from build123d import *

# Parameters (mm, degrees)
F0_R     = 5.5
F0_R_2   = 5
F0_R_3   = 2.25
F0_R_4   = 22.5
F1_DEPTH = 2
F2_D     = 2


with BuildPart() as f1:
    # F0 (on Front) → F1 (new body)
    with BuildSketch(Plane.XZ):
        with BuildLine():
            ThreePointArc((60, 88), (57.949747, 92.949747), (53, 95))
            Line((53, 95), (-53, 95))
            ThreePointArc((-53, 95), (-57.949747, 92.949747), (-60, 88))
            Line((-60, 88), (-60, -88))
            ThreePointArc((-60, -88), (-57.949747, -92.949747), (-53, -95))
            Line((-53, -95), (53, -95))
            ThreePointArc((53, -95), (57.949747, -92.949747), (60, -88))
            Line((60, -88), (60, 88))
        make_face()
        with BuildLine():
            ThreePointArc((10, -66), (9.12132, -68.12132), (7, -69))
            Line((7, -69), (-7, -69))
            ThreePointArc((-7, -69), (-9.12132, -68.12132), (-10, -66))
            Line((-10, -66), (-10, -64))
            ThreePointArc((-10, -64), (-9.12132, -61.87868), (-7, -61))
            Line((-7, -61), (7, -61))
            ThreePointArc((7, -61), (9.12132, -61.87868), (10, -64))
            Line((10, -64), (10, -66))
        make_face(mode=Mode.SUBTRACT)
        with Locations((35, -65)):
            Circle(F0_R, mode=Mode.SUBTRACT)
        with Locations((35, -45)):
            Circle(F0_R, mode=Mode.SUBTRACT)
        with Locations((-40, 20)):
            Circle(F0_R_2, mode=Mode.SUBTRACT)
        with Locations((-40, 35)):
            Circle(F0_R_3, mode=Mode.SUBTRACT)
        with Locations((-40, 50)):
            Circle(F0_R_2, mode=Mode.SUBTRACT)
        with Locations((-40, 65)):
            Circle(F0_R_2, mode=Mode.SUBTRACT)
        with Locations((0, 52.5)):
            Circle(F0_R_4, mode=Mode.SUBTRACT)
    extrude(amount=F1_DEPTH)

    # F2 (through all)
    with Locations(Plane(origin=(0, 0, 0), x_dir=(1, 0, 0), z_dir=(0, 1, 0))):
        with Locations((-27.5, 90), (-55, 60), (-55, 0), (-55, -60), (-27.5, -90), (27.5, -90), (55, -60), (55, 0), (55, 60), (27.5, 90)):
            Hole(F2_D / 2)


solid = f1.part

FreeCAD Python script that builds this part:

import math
import FreeCAD as App
import Part
import Sketcher
from FreeCAD import Vector

doc = App.newDocument("Part")
body = doc.addObject("PartDesign::Body", "Body")

# Sketch on XZ plane
sketch1 = doc.addObject("Sketcher::SketchObject", "Sketch")
body.addObject(sketch1)
sketch1.AttachmentSupport = (doc.XZ_Plane, [""])
sketch1.MapMode = "FlatFace"
sketch1.addGeometry(Part.ArcOfCircle(Part.Circle(Vector(52.999998, 87.999998, 0), Vector(0, 0, 1), 7.000002), math.radians(0.000013), math.radians(89.999987)), False)
sketch1.addGeometry(Part.LineSegment(Vector(53, 95, 0), Vector(-53, 95, 0)), False)
sketch1.addGeometry(Part.ArcOfCircle(Part.Circle(Vector(-52.999998, 87.999998, 0), Vector(0, 0, 1), 7.000002), math.radians(90.000013), math.radians(179.999987)), False)
sketch1.addGeometry(Part.LineSegment(Vector(-60, 88, 0), Vector(-60, -88, 0)), False)
sketch1.addGeometry(Part.ArcOfCircle(Part.Circle(Vector(-52.999998, -87.999998, 0), Vector(0, 0, 1), 7.000002), math.radians(-179.999987), math.radians(-90.000013)), False)
sketch1.addGeometry(Part.LineSegment(Vector(-53, -95, 0), Vector(53, -95, 0)), False)
sketch1.addGeometry(Part.ArcOfCircle(Part.Circle(Vector(52.999998, -87.999998, 0), Vector(0, 0, 1), 7.000002), math.radians(-89.999987), math.radians(-0.000013)), False)
sketch1.addGeometry(Part.LineSegment(Vector(60, -88, 0), Vector(60, 88, 0)), False)
sketch1.addGeometry(Part.LineSegment(Vector(10, -64, 0), Vector(10, -66, 0)), False)
sketch1.addGeometry(Part.ArcOfCircle(Part.Circle(Vector(6.999999, -65.999999, 0), Vector(0, 0, 1), 3.000001), math.radians(-89.999978), math.radians(-0.000022)), False)
sketch1.addGeometry(Part.LineSegment(Vector(7, -69, 0), Vector(-7, -69, 0)), False)
sketch1.addGeometry(Part.ArcOfCircle(Part.Circle(Vector(-6.999999, -65.999999, 0), Vector(0, 0, 1), 3.000001), math.radians(-179.999978), math.radians(-90.000022)), False)
sketch1.addGeometry(Part.LineSegment(Vector(-10, -66, 0), Vector(-10, -64, 0)), False)
sketch1.addGeometry(Part.ArcOfCircle(Part.Circle(Vector(-6.999999, -64.000001, 0), Vector(0, 0, 1), 3.000001), math.radians(90.000022), math.radians(179.999978)), False)
sketch1.addGeometry(Part.LineSegment(Vector(-7, -61, 0), Vector(7, -61, 0)), False)
sketch1.addGeometry(Part.ArcOfCircle(Part.Circle(Vector(6.999999, -64.000001, 0), Vector(0, 0, 1), 3.000001), math.radians(0.000022), math.radians(89.999978)), False)
sketch1.addGeometry(Part.Circle(Vector(35, -65, 0), Vector(0, 0, 1), 5.5), False)
sketch1.addGeometry(Part.Circle(Vector(35, -45, 0), Vector(0, 0, 1), 5.5), False)
sketch1.addGeometry(Part.Circle(Vector(-40, 20, 0), Vector(0, 0, 1), 5), False)
sketch1.addGeometry(Part.Circle(Vector(-40, 35, 0), Vector(0, 0, 1), 2.25), False)
sketch1.addGeometry(Part.Circle(Vector(-40, 50, 0), Vector(0, 0, 1), 5), False)
sketch1.addGeometry(Part.Circle(Vector(-40, 65, 0), Vector(0, 0, 1), 5), False)
sketch1.addGeometry(Part.Circle(Vector(0, 52.5, 0), Vector(0, 0, 1), 22.5), False)
sketch1.addConstraint(Sketcher.Constraint("Tangent", 0, 2, 1, 1))
sketch1.addConstraint(Sketcher.Constraint("Tangent", 1, 2, 2, 1))
sketch1.addConstraint(Sketcher.Constraint("Tangent", 2, 2, 3, 1))
sketch1.addConstraint(Sketcher.Constraint("Tangent", 3, 2, 4, 1))
sketch1.addConstraint(Sketcher.Constraint("Tangent", 4, 2, 5, 1))
sketch1.addConstraint(Sketcher.Constraint("Tangent", 5, 2, 6, 1))
sketch1.addConstraint(Sketcher.Constraint("Tangent", 6, 2, 7, 1))
sketch1.addConstraint(Sketcher.Constraint("Tangent", 7, 2, 0, 1))
sketch1.addConstraint(Sketcher.Constraint("Tangent", 8, 2, 9, 2))
sketch1.addConstraint(Sketcher.Constraint("Tangent", 9, 1, 10, 1))
sketch1.addConstraint(Sketcher.Constraint("Tangent", 10, 2, 11, 2))
sketch1.addConstraint(Sketcher.Constraint("Tangent", 11, 1, 12, 1))
sketch1.addConstraint(Sketcher.Constraint("Tangent", 12, 2, 13, 2))
sketch1.addConstraint(Sketcher.Constraint("Tangent", 13, 1, 14, 1))
sketch1.addConstraint(Sketcher.Constraint("Tangent", 14, 2, 15, 2))
sketch1.addConstraint(Sketcher.Constraint("Tangent", 15, 1, 8, 1))
sketch1.addConstraint(Sketcher.Constraint("Horizontal", 1))
sketch1.addConstraint(Sketcher.Constraint("Vertical", 3))
sketch1.addConstraint(Sketcher.Constraint("Horizontal", 5))
sketch1.addConstraint(Sketcher.Constraint("Vertical", 7))
sketch1.addConstraint(Sketcher.Constraint("Vertical", 8))
sketch1.addConstraint(Sketcher.Constraint("Horizontal", 10))
sketch1.addConstraint(Sketcher.Constraint("Vertical", 12))
sketch1.addConstraint(Sketcher.Constraint("Horizontal", 14))
sketch1.addConstraint(Sketcher.Constraint("Equal", 0, 2))
sketch1.addConstraint(Sketcher.Constraint("Equal", 2, 4))
sketch1.addConstraint(Sketcher.Constraint("Equal", 4, 6))
sketch1.addConstraint(Sketcher.Constraint("Equal", 9, 11))
sketch1.addConstraint(Sketcher.Constraint("Equal", 11, 13))
sketch1.addConstraint(Sketcher.Constraint("Equal", 13, 15))
sketch1.addConstraint(Sketcher.Constraint("Equal", 16, 17))
sketch1.addConstraint(Sketcher.Constraint("Equal", 18, 20))
sketch1.addConstraint(Sketcher.Constraint("Equal", 20, 21))
sketch1.addConstraint(Sketcher.Constraint("Symmetric", 0, 3, 4, 3, -1, 1))
sketch1.addConstraint(Sketcher.Constraint("PointOnObject", 22, 3, -2))
sketch1.addConstraint(Sketcher.Constraint("Vertical", 16, 3, 17, 3))
sketch1.addConstraint(Sketcher.Constraint("Vertical", 18, 3, 19, 3))
sketch1.addConstraint(Sketcher.Constraint("Vertical", 19, 3, 20, 3))
sketch1.addConstraint(Sketcher.Constraint("Vertical", 20, 3, 21, 3))
sketch1.addConstraint(Sketcher.Constraint("Diameter", 16, 11.0))
sketch1.addConstraint(Sketcher.Constraint("Diameter", 18, 10.0))
sketch1.addConstraint(Sketcher.Constraint("Diameter", 22, 45.0))
sketch1.addConstraint(Sketcher.Constraint("Radius", 0, 7.000002))
sketch1.addConstraint(Sketcher.Constraint("Radius", 9, 3.000001))
sketch1.addConstraint(Sketcher.Constraint("Diameter", 19, 4.5))
sketch1.addConstraint(Sketcher.Constraint("DistanceX", 1, 2, 1, 1, 106.0))
sketch1.addConstraint(Sketcher.Constraint("DistanceX", 10, 2, 10, 1, 14.0))
sketch1.addConstraint(Sketcher.Constraint("DistanceY", 3, 2, 3, 1, 176.0))
sketch1.addConstraint(Sketcher.Constraint("DistanceY", 8, 2, 8, 1, 2.0))
sketch1.addConstraint(Sketcher.Constraint("DistanceX", -1, 1, 9, 3, 6.999999))
sketch1.addConstraint(Sketcher.Constraint("DistanceY", 9, 3, -1, 1, 65.999999))
sketch1.addConstraint(Sketcher.Constraint("DistanceX", -1, 1, 16, 3, 35.0))
sketch1.addConstraint(Sketcher.Constraint("DistanceY", 16, 3, -1, 1, 65.0))
sketch1.addConstraint(Sketcher.Constraint("DistanceY", 17, 3, -1, 1, 45.0))
sketch1.addConstraint(Sketcher.Constraint("DistanceX", 18, 3, -1, 1, 40.0))
sketch1.addConstraint(Sketcher.Constraint("DistanceY", -1, 1, 18, 3, 20.0))
sketch1.addConstraint(Sketcher.Constraint("DistanceY", -1, 1, 19, 3, 35.0))
sketch1.addConstraint(Sketcher.Constraint("DistanceY", -1, 1, 20, 3, 50.0))
sketch1.addConstraint(Sketcher.Constraint("DistanceY", -1, 1, 21, 3, 65.0))
sketch1.addConstraint(Sketcher.Constraint("DistanceY", -1, 1, 22, 3, 52.5))
pad1 = doc.addObject("PartDesign::Pad", "Pad")
body.addObject(pad1)
pad1.Profile = sketch1
pad1.Length = 2

# Sketch on XZ plane
sketch2 = doc.addObject("Sketcher::SketchObject", "Sketch001")
body.addObject(sketch2)
sketch2.AttachmentSupport = (doc.XZ_Plane, [""])
sketch2.MapMode = "FlatFace"
sketch2.addGeometry(Part.Circle(Vector(-27.5, -90, 0), Vector(0, 0, 1), 1), False)
sketch2.addGeometry(Part.Circle(Vector(-55, -60, 0), Vector(0, 0, 1), 1), False)
sketch2.addGeometry(Part.Circle(Vector(-55, 0, 0), Vector(0, 0, 1), 1), False)
sketch2.addGeometry(Part.Circle(Vector(-55, 60, 0), Vector(0, 0, 1), 1), False)
sketch2.addGeometry(Part.Circle(Vector(-27.5, 90, 0), Vector(0, 0, 1), 1), False)
sketch2.addGeometry(Part.Circle(Vector(27.5, 90, 0), Vector(0, 0, 1), 1), False)
sketch2.addGeometry(Part.Circle(Vector(55, 60, 0), Vector(0, 0, 1), 1), False)
sketch2.addGeometry(Part.Circle(Vector(55, 0, 0), Vector(0, 0, 1), 1), False)
sketch2.addGeometry(Part.Circle(Vector(55, -60, 0), Vector(0, 0, 1), 1), False)
sketch2.addGeometry(Part.Circle(Vector(27.5, -90, 0), Vector(0, 0, 1), 1), False)
sketch2.addConstraint(Sketcher.Constraint("Equal", 0, 1))
sketch2.addConstraint(Sketcher.Constraint("Equal", 1, 2))
sketch2.addConstraint(Sketcher.Constraint("Equal", 2, 3))
sketch2.addConstraint(Sketcher.Constraint("Equal", 3, 4))
sketch2.addConstraint(Sketcher.Constraint("Equal", 4, 5))
sketch2.addConstraint(Sketcher.Constraint("Equal", 5, 6))
sketch2.addConstraint(Sketcher.Constraint("Equal", 6, 7))
sketch2.addConstraint(Sketcher.Constraint("Equal", 7, 8))
sketch2.addConstraint(Sketcher.Constraint("Equal", 8, 9))
sketch2.addConstraint(Sketcher.Constraint("Symmetric", 0, 3, 5, 3, -1, 1))
sketch2.addConstraint(Sketcher.Constraint("Symmetric", 1, 3, 6, 3, -1, 1))
sketch2.addConstraint(Sketcher.Constraint("Symmetric", 2, 3, 7, 3, -1, 1))
sketch2.addConstraint(Sketcher.Constraint("Symmetric", 3, 3, 8, 3, -1, 1))
sketch2.addConstraint(Sketcher.Constraint("Symmetric", 4, 3, 9, 3, -1, 1))
sketch2.addConstraint(Sketcher.Constraint("Symmetric", 4, 3, 5, 3, -2))
sketch2.addConstraint(Sketcher.Constraint("Symmetric", 3, 3, 6, 3, -2))
sketch2.addConstraint(Sketcher.Constraint("PointOnObject", 2, 3, -1))
sketch2.addConstraint(Sketcher.Constraint("Vertical", 1, 3, 2, 3))
sketch2.addConstraint(Sketcher.Constraint("Diameter", 0, 2.0))
sketch2.addConstraint(Sketcher.Constraint("DistanceY", 0, 3, -1, 1, 90.0))
sketch2.addConstraint(Sketcher.Constraint("DistanceX", 1, 3, -1, 1, 55.0))
sketch2.addConstraint(Sketcher.Constraint("DistanceY", 1, 3, -1, 1, 60.0))
sketch2.addConstraint(Sketcher.Constraint("DistanceX", 4, 3, 5, 3, 55.0))
doc.recompute()
hole = doc.addObject("PartDesign::Hole", "Hole")
body.addObject(hole)
hole.Profile = sketch2
hole.ThreadType = "None"
hole.Diameter = 2
hole.DepthType = "ThroughAll"
hole.Reversed = True

doc.recompute()
